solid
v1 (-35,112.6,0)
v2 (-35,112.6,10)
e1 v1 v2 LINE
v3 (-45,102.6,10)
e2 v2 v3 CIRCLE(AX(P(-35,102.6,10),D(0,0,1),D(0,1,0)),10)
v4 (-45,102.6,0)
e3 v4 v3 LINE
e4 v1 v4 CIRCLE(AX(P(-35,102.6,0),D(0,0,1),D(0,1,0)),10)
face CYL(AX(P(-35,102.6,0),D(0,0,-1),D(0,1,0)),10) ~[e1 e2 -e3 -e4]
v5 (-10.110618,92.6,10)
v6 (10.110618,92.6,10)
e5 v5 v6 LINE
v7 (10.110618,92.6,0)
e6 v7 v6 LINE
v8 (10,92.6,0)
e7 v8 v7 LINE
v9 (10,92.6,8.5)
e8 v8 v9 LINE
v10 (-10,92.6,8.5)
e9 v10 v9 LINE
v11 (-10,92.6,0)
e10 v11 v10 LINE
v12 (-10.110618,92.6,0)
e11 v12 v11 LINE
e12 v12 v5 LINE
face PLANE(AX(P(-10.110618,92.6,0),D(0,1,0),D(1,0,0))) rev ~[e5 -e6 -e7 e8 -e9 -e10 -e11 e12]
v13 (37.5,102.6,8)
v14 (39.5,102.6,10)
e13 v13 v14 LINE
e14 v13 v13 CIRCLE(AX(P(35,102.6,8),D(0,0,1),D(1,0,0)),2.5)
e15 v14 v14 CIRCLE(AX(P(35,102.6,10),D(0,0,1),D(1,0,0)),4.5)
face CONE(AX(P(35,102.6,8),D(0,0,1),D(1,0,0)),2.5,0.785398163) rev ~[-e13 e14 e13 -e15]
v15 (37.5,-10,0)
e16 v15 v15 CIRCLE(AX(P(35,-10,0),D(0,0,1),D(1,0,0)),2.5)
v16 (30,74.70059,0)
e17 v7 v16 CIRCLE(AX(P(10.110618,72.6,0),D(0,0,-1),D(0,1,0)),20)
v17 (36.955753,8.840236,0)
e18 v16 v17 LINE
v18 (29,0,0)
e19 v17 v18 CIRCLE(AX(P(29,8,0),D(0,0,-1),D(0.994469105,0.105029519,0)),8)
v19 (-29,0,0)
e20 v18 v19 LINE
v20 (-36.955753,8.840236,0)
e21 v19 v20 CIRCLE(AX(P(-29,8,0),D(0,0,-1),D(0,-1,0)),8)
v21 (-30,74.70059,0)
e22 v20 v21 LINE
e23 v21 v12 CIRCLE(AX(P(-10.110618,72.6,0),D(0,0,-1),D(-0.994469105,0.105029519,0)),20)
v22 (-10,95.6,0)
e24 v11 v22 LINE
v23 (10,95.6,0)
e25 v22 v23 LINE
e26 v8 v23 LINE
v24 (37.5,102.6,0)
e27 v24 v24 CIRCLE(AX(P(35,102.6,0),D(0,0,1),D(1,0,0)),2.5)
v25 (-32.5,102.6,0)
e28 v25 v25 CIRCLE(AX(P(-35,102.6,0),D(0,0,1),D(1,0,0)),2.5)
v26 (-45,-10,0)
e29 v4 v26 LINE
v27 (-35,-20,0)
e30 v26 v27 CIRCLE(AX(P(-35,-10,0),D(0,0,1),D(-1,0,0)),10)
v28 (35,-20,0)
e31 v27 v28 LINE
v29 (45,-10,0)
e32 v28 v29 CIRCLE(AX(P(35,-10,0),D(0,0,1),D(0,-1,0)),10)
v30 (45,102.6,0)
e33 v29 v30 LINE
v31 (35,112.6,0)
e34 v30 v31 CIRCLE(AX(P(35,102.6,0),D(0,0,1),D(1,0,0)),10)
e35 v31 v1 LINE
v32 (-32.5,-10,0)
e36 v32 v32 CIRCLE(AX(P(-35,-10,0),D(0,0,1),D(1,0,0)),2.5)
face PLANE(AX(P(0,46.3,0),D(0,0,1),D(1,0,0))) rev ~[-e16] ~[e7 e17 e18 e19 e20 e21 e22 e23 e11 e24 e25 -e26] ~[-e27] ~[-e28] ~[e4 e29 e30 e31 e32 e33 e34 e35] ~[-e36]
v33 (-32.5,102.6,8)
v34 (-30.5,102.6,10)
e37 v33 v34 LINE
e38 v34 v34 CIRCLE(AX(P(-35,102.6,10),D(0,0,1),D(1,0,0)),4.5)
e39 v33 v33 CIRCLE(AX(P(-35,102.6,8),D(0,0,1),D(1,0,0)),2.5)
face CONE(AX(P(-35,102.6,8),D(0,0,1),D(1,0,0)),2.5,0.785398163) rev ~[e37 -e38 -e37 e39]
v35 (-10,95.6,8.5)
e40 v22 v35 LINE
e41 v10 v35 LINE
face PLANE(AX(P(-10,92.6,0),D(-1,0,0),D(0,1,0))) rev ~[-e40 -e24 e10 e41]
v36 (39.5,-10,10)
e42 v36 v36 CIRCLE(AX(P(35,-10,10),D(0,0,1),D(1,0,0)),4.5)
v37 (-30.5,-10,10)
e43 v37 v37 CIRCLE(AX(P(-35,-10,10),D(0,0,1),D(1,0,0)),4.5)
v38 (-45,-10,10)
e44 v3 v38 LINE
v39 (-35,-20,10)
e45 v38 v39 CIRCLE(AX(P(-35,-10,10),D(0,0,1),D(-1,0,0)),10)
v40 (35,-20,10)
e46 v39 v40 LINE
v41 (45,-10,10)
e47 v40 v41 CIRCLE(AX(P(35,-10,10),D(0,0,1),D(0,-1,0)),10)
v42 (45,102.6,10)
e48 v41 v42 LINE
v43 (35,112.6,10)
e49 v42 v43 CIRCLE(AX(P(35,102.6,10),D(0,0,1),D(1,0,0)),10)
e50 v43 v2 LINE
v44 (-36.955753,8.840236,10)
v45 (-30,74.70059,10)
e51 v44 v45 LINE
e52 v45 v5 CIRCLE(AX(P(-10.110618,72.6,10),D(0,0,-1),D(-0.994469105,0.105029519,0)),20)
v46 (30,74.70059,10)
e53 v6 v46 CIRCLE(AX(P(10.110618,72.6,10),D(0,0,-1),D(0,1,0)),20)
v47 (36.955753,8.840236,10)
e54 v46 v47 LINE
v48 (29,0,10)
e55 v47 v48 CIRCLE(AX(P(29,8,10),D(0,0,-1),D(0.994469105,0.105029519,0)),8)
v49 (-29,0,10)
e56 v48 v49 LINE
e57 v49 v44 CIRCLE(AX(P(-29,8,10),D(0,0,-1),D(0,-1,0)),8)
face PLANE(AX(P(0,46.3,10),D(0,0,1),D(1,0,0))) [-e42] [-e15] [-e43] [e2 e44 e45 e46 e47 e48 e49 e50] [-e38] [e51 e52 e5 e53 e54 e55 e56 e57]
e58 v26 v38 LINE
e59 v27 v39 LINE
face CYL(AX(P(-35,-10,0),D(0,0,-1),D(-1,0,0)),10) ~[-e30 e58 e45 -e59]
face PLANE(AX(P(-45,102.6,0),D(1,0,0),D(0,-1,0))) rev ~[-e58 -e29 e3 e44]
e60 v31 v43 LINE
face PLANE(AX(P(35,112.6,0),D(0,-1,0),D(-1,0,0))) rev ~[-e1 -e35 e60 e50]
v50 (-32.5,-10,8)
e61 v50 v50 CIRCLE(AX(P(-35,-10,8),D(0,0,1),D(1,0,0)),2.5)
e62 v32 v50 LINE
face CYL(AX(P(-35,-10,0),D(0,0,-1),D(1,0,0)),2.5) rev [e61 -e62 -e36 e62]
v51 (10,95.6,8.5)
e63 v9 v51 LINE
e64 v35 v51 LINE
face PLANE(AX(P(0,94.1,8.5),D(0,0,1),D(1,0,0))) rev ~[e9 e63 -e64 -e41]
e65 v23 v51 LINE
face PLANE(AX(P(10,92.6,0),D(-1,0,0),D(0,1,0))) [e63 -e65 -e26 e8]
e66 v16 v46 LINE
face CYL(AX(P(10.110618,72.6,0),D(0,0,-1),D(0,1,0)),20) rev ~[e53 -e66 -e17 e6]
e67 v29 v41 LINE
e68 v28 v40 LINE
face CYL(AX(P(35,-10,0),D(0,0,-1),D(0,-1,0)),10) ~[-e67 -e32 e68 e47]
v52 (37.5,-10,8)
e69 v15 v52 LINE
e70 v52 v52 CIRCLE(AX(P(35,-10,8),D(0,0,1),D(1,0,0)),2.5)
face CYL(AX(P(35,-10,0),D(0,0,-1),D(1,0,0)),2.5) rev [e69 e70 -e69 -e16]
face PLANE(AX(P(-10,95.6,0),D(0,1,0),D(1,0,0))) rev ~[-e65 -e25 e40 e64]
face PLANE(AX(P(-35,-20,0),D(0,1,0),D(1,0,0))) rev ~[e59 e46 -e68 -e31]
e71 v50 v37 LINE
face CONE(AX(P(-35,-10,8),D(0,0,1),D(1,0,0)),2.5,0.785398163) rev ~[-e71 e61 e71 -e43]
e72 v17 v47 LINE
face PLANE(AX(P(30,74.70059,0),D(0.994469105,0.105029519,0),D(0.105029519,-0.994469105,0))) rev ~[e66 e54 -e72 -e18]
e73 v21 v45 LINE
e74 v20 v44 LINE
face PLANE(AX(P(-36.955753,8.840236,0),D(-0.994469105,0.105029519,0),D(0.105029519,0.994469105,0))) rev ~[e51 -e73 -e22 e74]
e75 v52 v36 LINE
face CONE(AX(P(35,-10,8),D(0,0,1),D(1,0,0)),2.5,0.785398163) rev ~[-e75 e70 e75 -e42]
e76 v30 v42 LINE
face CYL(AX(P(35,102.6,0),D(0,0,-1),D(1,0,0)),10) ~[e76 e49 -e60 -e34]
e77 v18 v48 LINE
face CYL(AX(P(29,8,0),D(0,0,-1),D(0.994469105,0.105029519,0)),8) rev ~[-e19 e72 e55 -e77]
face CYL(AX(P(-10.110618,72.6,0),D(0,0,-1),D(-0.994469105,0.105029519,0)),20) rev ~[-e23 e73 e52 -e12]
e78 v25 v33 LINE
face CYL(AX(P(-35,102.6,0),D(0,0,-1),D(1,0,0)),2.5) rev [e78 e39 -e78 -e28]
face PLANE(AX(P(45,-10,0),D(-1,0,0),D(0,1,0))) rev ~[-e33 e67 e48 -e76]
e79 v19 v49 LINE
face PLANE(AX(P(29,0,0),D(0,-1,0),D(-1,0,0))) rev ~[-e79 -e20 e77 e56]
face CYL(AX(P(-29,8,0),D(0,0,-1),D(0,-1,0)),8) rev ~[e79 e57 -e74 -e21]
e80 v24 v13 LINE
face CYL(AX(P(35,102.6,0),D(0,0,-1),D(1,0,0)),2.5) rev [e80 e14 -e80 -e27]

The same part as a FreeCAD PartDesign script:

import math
import FreeCAD as App
import Part
import Sketcher
Q = App.Units.Quantity


def edges_at(feature, points):
    """Names of the edges that pass closest to the given points."""
    edges = feature.Shape.Edges
    near = lambda p: min(range(len(edges)), key=lambda i: edges[i].distToShape(Part.Vertex(*p))[0])
    return sorted({f"Edge{near(p) + 1}" for p in points})


def add_polygon(sketch, points):
    """Adds a closed chain of lines whose ends are joined by coincident constraints."""
    first, n = sketch.GeometryCount, len(points)
    for a, b in zip(points, points[1:] + points[:1]):
        sketch.addGeometry(Part.LineSegment(App.Vector(*a, 0), App.Vector(*b, 0)), False)
    for i in range(n):
        sketch.addConstraint(Sketcher.Constraint("Coincident", first + i, 2, first + (i + 1) % n, 1))

doc = App.newDocument("Part")
body = doc.addObject("PartDesign::Body", "Body")

# Sketch on XY plane
sketch1 = doc.addObject("Sketcher::SketchObject", "Sketch")
body.addObject(sketch1)
sketch1.AttachmentSupport = (doc.XY_Plane, [""])
sketch1.MapMode = "FlatFace"
sketch1.addGeometry([
    Part.ArcOfCircle(Part.Circle(App.Vector(-35, -10, 0), App.Vector(0, 0, 1), 10), math.radians(180), math.radians(270)),  # 0
    Part.LineSegment(App.Vector(-35, -20, 0), App.Vector(35, -20, 0)),  # 1
    Part.ArcOfCircle(Part.Circle(App.Vector(35, -10, 0), App.Vector(0, 0, 1), 10), math.radians(-90), math.radians(0)),  # 2
    Part.LineSegment(App.Vector(45, -10, 0), App.Vector(45, 102.6, 0)),  # 3
    Part.ArcOfCircle(Part.Circle(App.Vector(35, 102.6, 0), App.Vector(0, 0, 1), 10), math.radians(0), math.radians(90)),  # 4
    Part.LineSegment(App.Vector(35, 112.6, 0), App.Vector(-35, 112.6, 0)),  # 5
    Part.ArcOfCircle(Part.Circle(App.Vector(-35, 102.6, 0), App.Vector(0, 0, 1), 10), math.radians(90), math.radians(180)),  # 6
    Part.LineSegment(App.Vector(-45, 102.6, 0), App.Vector(-45, -10, 0)),  # 7
    Part.Circle(App.Vector(-35, -10, 0), App.Vector(0, 0, 1), 2.5),  # 8
    Part.Circle(App.Vector(35, -10, 0), App.Vector(0, 0, 1), 2.5),  # 9
    Part.Circle(App.Vector(-35, 102.6, 0), App.Vector(0, 0, 1), 2.5),  # 10
    Part.LineSegment(App.Vector(-37, 8.8, 0), App.Vector(-30, 74.7, 0)),  # 11
    Part.ArcOfCircle(Part.Circle(App.Vector(-10.1, 72.6, 0), App.Vector(0, 0, 1), 20), math.radians(90), math.radians(174)),  # 12
    Part.LineSegment(App.Vector(-10.1, 92.6, 0), App.Vector(10.1, 92.6, 0)),  # 13
    Part.ArcOfCircle(Part.Circle(App.Vector(10.1, 72.6, 0), App.Vector(0, 0, 1), 20), math.radians(6), math.radians(90)),  # 14
    Part.LineSegment(App.Vector(30, 74.7, 0), App.Vector(37, 8.8, 0)),  # 15
    Part.ArcOfCircle(Part.Circle(App.Vector(29, 8, 0), App.Vector(0, 0, 1), 8), math.radians(-90), math.radians(6)),  # 16
    Part.LineSegment(App.Vector(29, 0, 0), App.Vector(-29, 0, 0)),  # 17
    Part.ArcOfCircle(Part.Circle(App.Vector(-29, 8, 0), App.Vector(0, 0, 1), 8), math.radians(174), math.radians(270)),  # 18
    Part.Circle(App.Vector(35, 102.6, 0), App.Vector(0, 0, 1), 2.5),  # 19
], False)
sketch1.addConstraint([
    Sketcher.Constraint("Tangent", 0, 2, 1, 1),
    Sketcher.Constraint("Tangent", 1, 2, 2, 1),
    Sketcher.Constraint("Tangent", 2, 2, 3, 1),
    Sketcher.Constraint("Tangent", 3, 2, 4, 1),
    Sketcher.Constraint("Tangent", 4, 2, 5, 1),
    Sketcher.Constraint("Tangent", 5, 2, 6, 1),
    Sketcher.Constraint("Tangent", 6, 2, 7, 1),
    Sketcher.Constraint("Tangent", 7, 2, 0, 1),
    Sketcher.Constraint("Tangent", 11, 2, 12, 2),
    Sketcher.Constraint("Tangent", 12, 1, 13, 1),
    Sketcher.Constraint("Tangent", 13, 2, 14, 2),
    Sketcher.Constraint("Tangent", 14, 1, 15, 1),
    Sketcher.Constraint("Tangent", 15, 2, 16, 2),
    Sketcher.Constraint("Tangent", 16, 1, 17, 1),
    Sketcher.Constraint("Tangent", 17, 2, 18, 2),
    Sketcher.Constraint("Tangent", 18, 1, 11, 1),
    Sketcher.Constraint("Horizontal", 1),
    Sketcher.Constraint("Vertical", 3),
    Sketcher.Constraint("Horizontal", 5),
    Sketcher.Constraint("Vertical", 7),
    Sketcher.Constraint("Horizontal", 13),
    Sketcher.Constraint("Horizontal", 17),
    Sketcher.Constraint("Coincident", 8, 3, 0, 3),
    Sketcher.Constraint("Coincident", 9, 3, 2, 3),
    Sketcher.Constraint("Coincident", 10, 3, 6, 3),
    Sketcher.Constraint("Coincident", 19, 3, 4, 3),
    Sketcher.Constraint("Equal", 0, 2),
    Sketcher.Constraint("Equal", 2, 4),
    Sketcher.Constraint("Equal", 4, 6),
    Sketcher.Constraint("Equal", 8, 9),
    Sketcher.Constraint("Equal", 9, 10),
    Sketcher.Constraint("Equal", 12, 14),
    Sketcher.Constraint("Equal", 16, 18),
    Sketcher.Constraint("Equal", 10, 19),
    Sketcher.Constraint("Symmetric", 16, 1, 17, 2, -1, 1),
    Sketcher.Constraint("Horizontal", 11, 2, 14, 1),
    Sketcher.Constraint("Diameter", 8, Q("5 mm")),
    Sketcher.Constraint("Radius", 0, Q("10 mm")),
    Sketcher.Constraint("Radius", 12, Q("20 mm")),
    Sketcher.Constraint("Radius", 16, Q("8 mm")),
    Sketcher.Constraint("DistanceX", 1, 1, 1, 2, Q("70 mm")),
    Sketcher.Constraint("DistanceX", 17, 2, 17, 1, Q("58 mm")),
    Sketcher.Constraint("DistanceY", 3, 1, 3, 2, Q("112.6 mm")),
    Sketcher.Constraint("DistanceX", 0, 3, -1, 1, Q("35 mm")),
    Sketcher.Constraint("DistanceY", 0, 3, -1, 1, Q("10 mm")),
    Sketcher.Constraint("DistanceX", 11, 2, -1, 1, Q("30 mm")),
    Sketcher.Constraint("DistanceY", 12, 3, 6, 3, Q("30 mm")),
])
pad1 = doc.addObject("PartDesign::Pad", "Pad")
body.addObject(pad1)
pad1.Profile = sketch1
pad1.Length = 10
doc.recompute()

chamfer = doc.addObject("PartDesign::Chamfer", "Chamfer")
body.addObject(chamfer)
chamfer.Base = (pad1, edges_at(pad1, [
    (-37.5, -10, 10),
    (32.5, -10, 10),
    (32.5, 102.6, 10),
    (-37.5, 102.6, 10),
]))
chamfer.Size = 2

# Sketch on XY plane
sketch2 = doc.addObject("Sketcher::SketchObject", "Sketch001")
body.addObject(sketch2)
sketch2.AttachmentSupport = (doc.XY_Plane, [""])
sketch2.MapMode = "FlatFace"
add_polygon(sketch2, [(-10, 95.6), (-10, 92.6), (10, 92.6), (10, 95.6)])  # lines 0-3
sketch2.addConstraint([
    Sketcher.Constraint("Vertical", 0),
    Sketcher.Constraint("Horizontal", 1),
    Sketcher.Constraint("Vertical", 2),
    Sketcher.Constraint("Horizontal", 3),
    Sketcher.Constraint("DistanceX", 1, 1, 1, 2, Q("20 mm")),
    Sketcher.Constraint("DistanceY", 0, 2, 0, 1, Q("3 mm")),
    Sketcher.Constraint("DistanceX", 0, 2, -1, 1, Q("10 mm")),
    Sketcher.Constraint("DistanceY", -1, 1, 0, 2, Q("92.6 mm")),
])
pocket1 = doc.addObject("PartDesign::Pocket", "Pocket")
body.addObject(pocket1)
pocket1.Profile = sketch2
pocket1.Length = 8.5
pocket1.Reversed = True

doc.recompute()
